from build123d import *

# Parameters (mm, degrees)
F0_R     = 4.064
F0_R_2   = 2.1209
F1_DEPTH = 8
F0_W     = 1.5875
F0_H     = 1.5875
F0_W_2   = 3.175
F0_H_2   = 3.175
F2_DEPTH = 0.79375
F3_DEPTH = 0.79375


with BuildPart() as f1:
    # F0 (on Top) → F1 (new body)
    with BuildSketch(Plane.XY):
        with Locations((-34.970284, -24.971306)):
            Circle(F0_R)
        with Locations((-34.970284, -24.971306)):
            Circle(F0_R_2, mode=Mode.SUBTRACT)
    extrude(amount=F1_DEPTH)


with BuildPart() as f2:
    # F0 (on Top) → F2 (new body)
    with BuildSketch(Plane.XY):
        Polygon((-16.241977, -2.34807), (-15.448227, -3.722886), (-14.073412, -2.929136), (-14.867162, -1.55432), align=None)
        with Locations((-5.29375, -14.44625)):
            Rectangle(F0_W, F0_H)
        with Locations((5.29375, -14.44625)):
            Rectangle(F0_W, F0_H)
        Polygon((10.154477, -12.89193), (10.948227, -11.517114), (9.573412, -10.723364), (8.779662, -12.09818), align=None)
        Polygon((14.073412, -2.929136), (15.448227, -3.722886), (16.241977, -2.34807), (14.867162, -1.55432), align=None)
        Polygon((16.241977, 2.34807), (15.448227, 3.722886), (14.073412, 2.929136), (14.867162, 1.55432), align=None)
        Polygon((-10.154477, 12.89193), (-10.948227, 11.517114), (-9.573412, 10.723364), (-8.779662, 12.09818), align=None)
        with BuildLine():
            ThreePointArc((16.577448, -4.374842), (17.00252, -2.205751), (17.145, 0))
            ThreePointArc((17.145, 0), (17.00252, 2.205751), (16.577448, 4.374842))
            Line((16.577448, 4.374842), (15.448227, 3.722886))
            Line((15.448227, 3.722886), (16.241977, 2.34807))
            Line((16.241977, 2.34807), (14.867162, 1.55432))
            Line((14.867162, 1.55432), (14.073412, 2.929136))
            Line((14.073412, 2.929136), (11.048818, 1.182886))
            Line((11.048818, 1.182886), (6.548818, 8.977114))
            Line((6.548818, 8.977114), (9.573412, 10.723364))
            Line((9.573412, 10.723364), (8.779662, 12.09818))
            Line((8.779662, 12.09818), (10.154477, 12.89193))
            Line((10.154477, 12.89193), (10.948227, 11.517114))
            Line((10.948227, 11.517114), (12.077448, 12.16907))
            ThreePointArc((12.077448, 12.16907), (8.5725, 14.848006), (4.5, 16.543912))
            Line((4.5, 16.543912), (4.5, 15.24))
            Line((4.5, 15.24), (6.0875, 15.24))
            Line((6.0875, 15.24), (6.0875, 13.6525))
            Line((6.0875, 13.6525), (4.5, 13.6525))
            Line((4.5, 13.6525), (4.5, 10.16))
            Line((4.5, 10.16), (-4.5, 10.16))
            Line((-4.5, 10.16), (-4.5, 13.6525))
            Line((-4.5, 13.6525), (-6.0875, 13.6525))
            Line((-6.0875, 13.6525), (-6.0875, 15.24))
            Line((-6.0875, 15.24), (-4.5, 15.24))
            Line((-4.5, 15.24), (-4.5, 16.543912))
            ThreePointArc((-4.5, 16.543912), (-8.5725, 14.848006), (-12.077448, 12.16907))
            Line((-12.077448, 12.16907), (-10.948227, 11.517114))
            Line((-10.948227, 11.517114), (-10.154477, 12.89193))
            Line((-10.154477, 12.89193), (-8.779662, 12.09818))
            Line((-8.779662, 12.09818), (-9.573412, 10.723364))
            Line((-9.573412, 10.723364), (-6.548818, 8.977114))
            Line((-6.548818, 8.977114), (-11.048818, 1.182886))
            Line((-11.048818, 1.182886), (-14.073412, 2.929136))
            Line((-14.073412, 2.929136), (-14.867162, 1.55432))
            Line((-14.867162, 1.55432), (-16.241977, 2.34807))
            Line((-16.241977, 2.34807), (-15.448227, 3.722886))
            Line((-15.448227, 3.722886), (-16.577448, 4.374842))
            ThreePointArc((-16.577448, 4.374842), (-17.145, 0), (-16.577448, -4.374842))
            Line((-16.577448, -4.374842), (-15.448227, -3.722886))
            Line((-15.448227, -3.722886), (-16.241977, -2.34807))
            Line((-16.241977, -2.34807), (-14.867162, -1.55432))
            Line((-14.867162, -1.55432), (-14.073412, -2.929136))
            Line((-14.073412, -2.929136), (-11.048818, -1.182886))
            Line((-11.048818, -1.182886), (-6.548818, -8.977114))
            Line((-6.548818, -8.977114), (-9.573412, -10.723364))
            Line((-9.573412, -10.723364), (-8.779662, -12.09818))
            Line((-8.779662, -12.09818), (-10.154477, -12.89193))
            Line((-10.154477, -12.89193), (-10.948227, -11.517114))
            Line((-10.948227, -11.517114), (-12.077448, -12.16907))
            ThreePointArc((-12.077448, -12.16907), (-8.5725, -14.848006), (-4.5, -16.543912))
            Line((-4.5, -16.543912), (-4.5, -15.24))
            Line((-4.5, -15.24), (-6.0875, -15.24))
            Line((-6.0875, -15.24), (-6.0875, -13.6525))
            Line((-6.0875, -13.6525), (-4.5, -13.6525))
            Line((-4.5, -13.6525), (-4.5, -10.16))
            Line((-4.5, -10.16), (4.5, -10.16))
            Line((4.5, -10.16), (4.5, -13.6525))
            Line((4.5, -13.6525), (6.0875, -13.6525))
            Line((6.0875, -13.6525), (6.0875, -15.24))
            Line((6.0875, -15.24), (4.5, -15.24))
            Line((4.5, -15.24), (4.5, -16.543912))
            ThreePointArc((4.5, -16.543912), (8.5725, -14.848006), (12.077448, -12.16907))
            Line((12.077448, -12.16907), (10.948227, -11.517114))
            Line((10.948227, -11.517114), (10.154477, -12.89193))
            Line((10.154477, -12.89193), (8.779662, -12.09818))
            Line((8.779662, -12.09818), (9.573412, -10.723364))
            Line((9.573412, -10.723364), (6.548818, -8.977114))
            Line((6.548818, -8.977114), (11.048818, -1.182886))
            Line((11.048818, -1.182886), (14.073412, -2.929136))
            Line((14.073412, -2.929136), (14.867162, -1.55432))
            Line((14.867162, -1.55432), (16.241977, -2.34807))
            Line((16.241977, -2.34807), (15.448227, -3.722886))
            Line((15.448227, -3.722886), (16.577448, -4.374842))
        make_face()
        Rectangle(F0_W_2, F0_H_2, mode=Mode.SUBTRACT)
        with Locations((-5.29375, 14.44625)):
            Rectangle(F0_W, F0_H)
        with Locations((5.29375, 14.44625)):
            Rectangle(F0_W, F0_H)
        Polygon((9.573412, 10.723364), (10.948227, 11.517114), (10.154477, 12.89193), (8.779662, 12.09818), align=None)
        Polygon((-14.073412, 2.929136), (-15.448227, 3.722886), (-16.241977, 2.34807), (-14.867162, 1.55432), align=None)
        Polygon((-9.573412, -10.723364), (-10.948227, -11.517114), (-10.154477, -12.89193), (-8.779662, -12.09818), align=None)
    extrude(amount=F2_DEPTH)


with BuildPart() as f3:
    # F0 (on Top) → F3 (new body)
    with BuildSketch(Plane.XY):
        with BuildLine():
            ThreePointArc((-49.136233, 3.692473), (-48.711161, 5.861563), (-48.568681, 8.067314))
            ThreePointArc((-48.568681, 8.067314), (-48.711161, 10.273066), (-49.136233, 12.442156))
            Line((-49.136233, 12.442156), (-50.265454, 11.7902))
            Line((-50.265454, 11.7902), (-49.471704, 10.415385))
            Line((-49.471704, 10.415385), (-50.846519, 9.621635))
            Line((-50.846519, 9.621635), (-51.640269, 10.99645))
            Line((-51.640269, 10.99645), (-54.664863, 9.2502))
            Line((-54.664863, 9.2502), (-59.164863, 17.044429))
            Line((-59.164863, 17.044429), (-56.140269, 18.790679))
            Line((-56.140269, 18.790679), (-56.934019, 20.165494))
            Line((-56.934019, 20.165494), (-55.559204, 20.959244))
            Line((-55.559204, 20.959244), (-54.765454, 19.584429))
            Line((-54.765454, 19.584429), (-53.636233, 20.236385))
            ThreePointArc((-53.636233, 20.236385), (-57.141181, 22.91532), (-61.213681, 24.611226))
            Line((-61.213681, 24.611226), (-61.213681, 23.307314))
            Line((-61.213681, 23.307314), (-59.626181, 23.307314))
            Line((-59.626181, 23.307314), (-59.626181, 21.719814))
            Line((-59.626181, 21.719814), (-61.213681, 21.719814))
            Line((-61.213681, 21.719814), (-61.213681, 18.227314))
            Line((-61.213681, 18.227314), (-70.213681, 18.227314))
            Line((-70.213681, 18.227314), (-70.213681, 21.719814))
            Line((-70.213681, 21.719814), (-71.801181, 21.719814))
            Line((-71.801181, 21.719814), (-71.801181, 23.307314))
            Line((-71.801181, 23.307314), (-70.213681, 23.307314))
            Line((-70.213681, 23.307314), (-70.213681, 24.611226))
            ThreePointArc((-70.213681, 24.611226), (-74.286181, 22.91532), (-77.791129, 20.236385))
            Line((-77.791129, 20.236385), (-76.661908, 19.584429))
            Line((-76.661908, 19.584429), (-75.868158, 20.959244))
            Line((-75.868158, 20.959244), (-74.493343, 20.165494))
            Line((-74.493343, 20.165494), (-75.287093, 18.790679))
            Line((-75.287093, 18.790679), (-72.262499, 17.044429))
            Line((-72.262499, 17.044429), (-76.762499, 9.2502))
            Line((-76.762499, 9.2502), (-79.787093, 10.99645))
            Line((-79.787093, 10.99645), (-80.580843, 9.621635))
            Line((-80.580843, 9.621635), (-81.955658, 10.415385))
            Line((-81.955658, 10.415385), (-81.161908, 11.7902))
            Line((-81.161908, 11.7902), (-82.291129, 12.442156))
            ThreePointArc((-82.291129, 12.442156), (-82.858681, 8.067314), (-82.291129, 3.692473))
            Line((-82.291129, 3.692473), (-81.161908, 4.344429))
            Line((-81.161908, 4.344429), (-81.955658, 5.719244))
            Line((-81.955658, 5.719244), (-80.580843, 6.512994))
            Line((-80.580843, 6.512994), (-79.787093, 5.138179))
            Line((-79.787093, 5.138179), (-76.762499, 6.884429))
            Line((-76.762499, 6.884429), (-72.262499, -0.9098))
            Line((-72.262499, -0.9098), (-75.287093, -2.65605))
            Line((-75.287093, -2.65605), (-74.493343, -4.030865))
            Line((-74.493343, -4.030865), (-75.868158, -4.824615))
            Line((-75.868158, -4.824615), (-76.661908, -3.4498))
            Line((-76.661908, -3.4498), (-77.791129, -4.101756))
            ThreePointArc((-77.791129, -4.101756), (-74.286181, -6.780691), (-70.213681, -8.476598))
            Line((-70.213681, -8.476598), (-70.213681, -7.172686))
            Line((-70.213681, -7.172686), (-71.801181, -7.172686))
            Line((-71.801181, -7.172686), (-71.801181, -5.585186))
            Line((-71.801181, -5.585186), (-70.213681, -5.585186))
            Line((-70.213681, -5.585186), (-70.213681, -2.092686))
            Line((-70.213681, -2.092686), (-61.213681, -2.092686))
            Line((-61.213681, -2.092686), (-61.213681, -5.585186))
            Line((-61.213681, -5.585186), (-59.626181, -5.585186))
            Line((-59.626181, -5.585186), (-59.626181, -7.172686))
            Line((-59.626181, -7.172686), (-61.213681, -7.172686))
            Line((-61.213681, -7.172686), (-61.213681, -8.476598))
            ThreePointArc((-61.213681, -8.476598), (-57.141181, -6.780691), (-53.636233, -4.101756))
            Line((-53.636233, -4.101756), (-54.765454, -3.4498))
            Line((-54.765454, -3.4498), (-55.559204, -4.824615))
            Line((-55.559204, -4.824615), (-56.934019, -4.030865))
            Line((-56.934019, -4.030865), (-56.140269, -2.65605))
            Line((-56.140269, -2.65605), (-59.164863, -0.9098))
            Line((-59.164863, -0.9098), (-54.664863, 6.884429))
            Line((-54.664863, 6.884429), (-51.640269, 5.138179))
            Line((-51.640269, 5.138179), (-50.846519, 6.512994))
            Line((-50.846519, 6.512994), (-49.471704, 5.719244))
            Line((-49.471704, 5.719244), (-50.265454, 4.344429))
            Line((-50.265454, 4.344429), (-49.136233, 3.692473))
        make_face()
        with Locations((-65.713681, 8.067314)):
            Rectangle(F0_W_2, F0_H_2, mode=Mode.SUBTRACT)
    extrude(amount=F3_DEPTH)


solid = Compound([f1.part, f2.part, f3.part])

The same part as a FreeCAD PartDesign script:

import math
import FreeCAD as App
import Part
import Sketcher
Q = App.Units.Quantity


def add_polygon(sketch, points):
    """Adds a closed chain of lines whose ends are joined by coincident constraints."""
    first, n = sketch.GeometryCount, len(points)
    for a, b in zip(points, points[1:] + points[:1]):
        sketch.addGeometry(Part.LineSegment(App.Vector(*a, 0), App.Vector(*b, 0)), False)
    for i in range(n):
        sketch.addConstraint(Sketcher.Constraint("Coincident", first + i, 2, first + (i + 1) % n, 1))

doc = App.newDocument("Part")
params = doc.addObject("Spreadsheet::Sheet", "Params")
for row, (alias, value) in enumerate([
    ("sketch1_diameter", "0.32 in"),
    ("sketch1_diameter2", "0.167 in"),
    ("pad1_length", "8 mm"),
    ("sketch2_radius", "0.6750001 in"),
    ("sketch2_width", "0.125 in"),
    ("sketch2_length", "0.0625 in"),
    ("pad2_length", "0.03125 in"),
    ("sketch3_radius", "0.6749998 in"),
    ("sketch3_width", "0.0625 in"),
    ("sketch3_width2", "0.125 in"),
    ("sketch3_length", "0.0625 in"),
    ("pad3_length", "0.03125 in"),
], start=1):
    params.set(f"A{row}", alias)
    params.set(f"B{row}", "=" + value)
    params.setAlias(f"B{row}", alias)

body = doc.addObject("PartDesign::Body", "Body")

sketch1 = body.newObject("Sketcher::SketchObject", "Sketch")
sketch1.AttachmentSupport = (doc.getObject("XY_Plane"), [""])
sketch1.MapMode = "FlatFace"
sketch1.addGeometry(Part.Circle(App.Vector(-35, -25, 0), App.Vector(0, 0, 1), 4.1), False)
sketch1.addGeometry(Part.Circle(App.Vector(-35, -25, 0), App.Vector(0, 0, 1), 2.1), False)
sketch1.addConstraint(Sketcher.Constraint("Coincident", 1, 3, 0, 3))
sketch1.addConstraint(Sketcher.Constraint("Diameter", 0, Q("0.32 in")))
sketch1.addConstraint(Sketcher.Constraint("Diameter", 1, Q("0.167 in")))
sketch1.addConstraint(Sketcher.Constraint("DistanceX", 0, 3, -1, 1, Q("34.970284 mm")))
sketch1.addConstraint(Sketcher.Constraint("DistanceY", 0, 3, -1, 1, Q("24.971306 mm")))
sketch1.setExpression("Constraints[1]", "Params.sketch1_diameter")
sketch1.setExpression("Constraints[2]", "Params.sketch1_diameter2")
pad1 = body.newObject("PartDesign::Pad", "Pad")
pad1.Profile = sketch1
pad1.setExpression("Length", "Params.pad1_length")
body2 = doc.addObject("PartDesign::Body", "Body001")

sketch2 = body2.newObject("Sketcher::SketchObject", "Sketch001")
sketch2.AttachmentSupport = (doc.getObject("XY_Plane001"), [""])
sketch2.MapMode = "FlatFace"
sketch2.addGeometry(Part.LineSegment(App.Vector(-15.448227, -3.722886, 0), App.Vector(-14.073412, -2.929136, 0)), False)
sketch2.addGeometry(Part.LineSegment(App.Vector(-14.073412, -2.929136, 0), App.Vector(-11.048818, -1.182886, 0)), False)
sketch2.addGeometry(Part.LineSegment(App.Vector(-11.048818, -1.182886, 0), App.Vector(-6.548818, -8.977114, 0)), False)
sketch2.addGeometry(Part.LineSegment(App.Vector(-6.548818, -8.977114, 0), App.Vector(-9.573412, -10.723364, 0)), False)
sketch2.addGeometry(Part.LineSegment(App.Vector(-9.573412, -10.723364, 0), App.Vector(-10.948227, -11.517114, 0)), False)
sketch2.addGeometry(Part.LineSegment(App.Vector(-10.948227, -11.517114, 0), App.Vector(-12.077448, -12.16907, 0)), False)
sketch2.addGeometry(Part.ArcOfCircle(Part.Circle(App.Vector(-0.000008, -0.000015, 0), App.Vector(0, 0, 1), 17.144984), math.radians(-134.783509), math.radians(-105.216495)), False)
sketch2.addGeometry(Part.LineSegment(App.Vector(-4.5, -16.543912, 0), App.Vector(-4.5, -10.16, 0)), False)
sketch2.addGeometry(Part.LineSegment(App.Vector(-4.5, -10.16, 0), App.Vector(4.5, -10.16, 0)), False)
sketch2.addGeometry(Part.LineSegment(App.Vector(4.5, -10.16, 0), App.Vector(4.5, -16.543912, 0)), False)
sketch2.addGeometry(Part.ArcOfCircle(Part.Circle(App.Vector(0.000008, -0.000015, 0), App.Vector(0, 0, 1), 17.144984), math.radians(-74.783505), math.radians(-45.216491)), False)
sketch2.addGeometry(Part.LineSegment(App.Vector(12.077448, -12.16907, 0), App.Vector(10.948227, -11.517114, 0)), False)
sketch2.addGeometry(Part.LineSegment(App.Vector(10.948227, -11.517114, 0), App.Vector(9.573412, -10.723364, 0)), False)
sketch2.addGeometry(Part.LineSegment(App.Vector(9.573412, -10.723364, 0), App.Vector(6.548818, -8.977114, 0)), False)
sketch2.addGeometry(Part.LineSegment(App.Vector(6.548818, -8.977114, 0), App.Vector(11.048818, -1.182886, 0)), False)
sketch2.addGeometry(Part.LineSegment(App.Vector(11.048818, -1.182886, 0), App.Vector(14.073412, -2.929136, 0)), False)
sketch2.addGeometry(Part.LineSegment(App.Vector(14.073412, -2.929136, 0), App.Vector(15.448227, -3.722886, 0)), False)
sketch2.addGeometry(Part.LineSegment(App.Vector(15.448227, -3.722886, 0), App.Vector(16.577448, -4.374842, 0)), False)
sketch2.addGeometry(Part.ArcOfCircle(Part.Circle(App.Vector(-0.000004, 0, 0), App.Vector(0, 0, 1), 17.145004), math.radians(-14.783493), math.radians(-0.000002)), False)
sketch2.addGeometry(Part.ArcOfCircle(Part.Circle(App.Vector(-0.000004, 0, 0), App.Vector(0, 0, 1), 17.145004), math.radians(0.000002), math.radians(14.783493)), False)
sketch2.addGeometry(Part.LineSegment(App.Vector(16.577448, 4.374842, 0), App.Vector(15.448227, 3.722886, 0)), False)
sketch2.addGeometry(Part.LineSegment(App.Vector(15.448227, 3.722886, 0), App.Vector(14.073412, 2.929136, 0)), False)
sketch2.addGeometry(Part.LineSegment(App.Vector(14.073412, 2.929136, 0), App.Vector(11.048818, 1.182886, 0)), False)
sketch2.addGeometry(Part.LineSegment(App.Vector(11.048818, 1.182886, 0), App.Vector(6.548818, 8.977114, 0)), False)
sketch2.addGeometry(Part.LineSegment(App.Vector(6.548818, 8.977114, 0), App.Vector(9.573412, 10.723364, 0)), False)
sketch2.addGeometry(Part.LineSegment(App.Vector(9.573412, 10.723364, 0), App.Vector(10.948227, 11.517114, 0)), False)
sketch2.addGeometry(Part.LineSegment(App.Vector(10.948227, 11.517114, 0), App.Vector(12.077448, 12.16907, 0)), False)
sketch2.addGeometry(Part.ArcOfCircle(Part.Circle(App.Vector(0.000008, 0.000015, 0), App.Vector(0, 0, 1), 17.144984), math.radians(45.216491), math.radians(74.783505)), False)
sketch2.addGeometry(Part.LineSegment(App.Vector(4.5, 16.543912, 0), App.Vector(4.5, 10.16, 0)), False)
sketch2.addGeometry(Part.LineSegment(App.Vector(4.5, 10.16, 0), App.Vector(-4.5, 10.16, 0)), False)
sketch2.addGeometry(Part.LineSegment(App.Vector(-4.5, 10.16, 0), App.Vector(-4.5, 16.543912, 0)), False)
sketch2.addGeometry(Part.ArcOfCircle(Part.Circle(App.Vector(-0.000008, 0.000015, 0), App.Vector(0, 0, 1), 17.144984), math.radians(105.216495), math.radians(134.783509)), False)
sketch2.addGeometry(Part.LineSegment(App.Vector(-12.077448, 12.16907, 0), App.Vector(-10.948227, 11.517114, 0)), False)
sketch2.addGeometry(Part.LineSegment(App.Vector(-10.948227, 11.517114, 0), App.Vector(-9.573412, 10.723364, 0)), False)
sketch2.addGeometry(Part.LineSegment(App.Vector(-9.573412, 10.723364, 0), App.Vector(-6.548818, 8.977114, 0)), False)
sketch2.addGeometry(Part.LineSegment(App.Vector(-6.548818, 8.977114, 0), App.Vector(-11.048818, 1.182886, 0)), False)
sketch2.addGeometry(Part.LineSegment(App.Vector(-11.048818, 1.182886, 0), App.Vector(-14.073412, 2.929136, 0)), False)
sketch2.addGeometry(Part.LineSegment(App.Vector(-14.073412, 2.929136, 0), App.Vector(-15.448227, 3.722886, 0)), False)
sketch2.addGeometry(Part.LineSegment(App.Vector(-15.448227, 3.722886, 0), App.Vector(-16.577448, 4.374842, 0)), False)
sketch2.addGeometry(Part.ArcOfCircle(Part.Circle(App.Vector(0, 0, 0), App.Vector(0, 0, 1), 17.145), math.radians(165.216506), math.radians(194.783494)), False)
sketch2.addGeometry(Part.LineSegment(App.Vector(-16.577448, -4.374842, 0), App.Vector(-15.448227, -3.722886, 0)), False)
add_polygon(sketch2, [(1.5875, -1.5875), (-1.5875, -1.5875), (-1.5875, 1.5875), (1.5875, 1.5875)])
sketch2.addConstraint(Sketcher.Constraint("Coincident", 0, 2, 1, 1))
sketch2.addConstraint(Sketcher.Constraint("Coincident", 1, 2, 2, 1))
sketch2.addConstraint(Sketcher.Constraint("Coincident", 2, 2, 3, 1))
sketch2.addConstraint(Sketcher.Constraint("Coincident", 3, 2, 4, 1))
sketch2.addConstraint(Sketcher.Constraint("Coincident", 4, 2, 5, 1))
sketch2.addConstraint(Sketcher.Constraint("Coincident", 5, 2, 6, 1))
sketch2.addConstraint(Sketcher.Constraint("Coincident", 6, 2, 7, 1))
sketch2.addConstraint(Sketcher.Constraint("Coincident", 7, 2, 8, 1))
sketch2.addConstraint(Sketcher.Constraint("Coincident", 8, 2, 9, 1))
sketch2.addConstraint(Sketcher.Constraint("Coincident", 9, 2, 10, 1))
sketch2.addConstraint(Sketcher.Constraint("Coincident", 10, 2, 11, 1))
sketch2.addConstraint(Sketcher.Constraint("Coincident", 11, 2, 12, 1))
sketch2.addConstraint(Sketcher.Constraint("Coincident", 12, 2, 13, 1))
sketch2.addConstraint(Sketcher.Constraint("Coincident", 13, 2, 14, 1))
sketch2.addConstraint(Sketcher.Constraint("Coincident", 14, 2, 15, 1))
sketch2.addConstraint(Sketcher.Constraint("Coincident", 15, 2, 16, 1))
sketch2.addConstraint(Sketcher.Constraint("Coincident", 16, 2, 17, 1))
sketch2.addConstraint(Sketcher.Constraint("Coincident", 17, 2, 18, 1))
sketch2.addConstraint(Sketcher.Constraint("Tangent", 18, 2, 19, 1))
sketch2.addConstraint(Sketcher.Constraint("Coincident", 19, 2, 20, 1))
sketch2.addConstraint(Sketcher.Constraint("Coincident", 20, 2, 21, 1))
sketch2.addConstraint(Sketcher.Constraint("Coincident", 21, 2, 22, 1))
sketch2.addConstraint(Sketcher.Constraint("Coincident", 22, 2, 23, 1))
sketch2.addConstraint(Sketcher.Constraint("Coincident", 23, 2, 24, 1))
sketch2.addConstraint(Sketcher.Constraint("Coincident", 24, 2, 25, 1))
sketch2.addConstraint(Sketcher.Constraint("Coincident", 25, 2, 26, 1))
sketch2.addConstraint(Sketcher.Constraint("Coincident", 26, 2, 27, 1))
sketch2.addConstraint(Sketcher.Constraint("Coincident", 27, 2, 28, 1))
sketch2.addConstraint(Sketcher.Constraint("Coincident", 28, 2, 29, 1))
sketch2.addConstraint(Sketcher.Constraint("Coincident", 29, 2, 30, 1))
sketch2.addConstraint(Sketcher.Constraint("Coincident", 30, 2, 31, 1))
sketch2.addConstraint(Sketcher.Constraint("Coincident", 31, 2, 32, 1))
sketch2.addConstraint(Sketcher.Constraint("Coincident", 32, 2, 33, 1))
sketch2.addConstraint(Sketcher.Constraint("Coincident", 33, 2, 34, 1))
sketch2.addConstraint(Sketcher.Constraint("Coincident", 34, 2, 35, 1))
sketch2.addConstraint(Sketcher.Constraint("Coincident", 35, 2, 36, 1))
sketch2.addConstraint(Sketcher.Constraint("Coincident", 36, 2, 37, 1))
sketch2.addConstraint(Sketcher.Constraint("Coincident", 37, 2, 38, 1))
sketch2.addConstraint(Sketcher.Constraint("Coincident", 38, 2, 39, 1))
sketch2.addConstraint(Sketcher.Constraint("Coincident", 39, 2, 40, 1))
sketch2.addConstraint(Sketcher.Constraint("Coincident", 40, 2, 0, 1))
sketch2.addConstraint(Sketcher.Constraint("Vertical", 7))
sketch2.addConstraint(Sketcher.Constraint("Horizontal", 8))
sketch2.addConstraint(Sketcher.Constraint("Vertical", 9))
sketch2.addConstraint(Sketcher.Constraint("Vertical", 28))
sketch2.addConstraint(Sketcher.Constraint("Horizontal", 29))
sketch2.addConstraint(Sketcher.Constraint("Vertical", 30))
sketch2.addConstraint(Sketcher.Constraint("Horizontal", 41))
sketch2.addConstraint(Sketcher.Constraint("Vertical", 42))
sketch2.addConstraint(Sketcher.Constraint("Horizontal", 43))
sketch2.addConstraint(Sketcher.Constraint("Vertical", 44))
sketch2.addConstraint(Sketcher.Constraint("Coincident", 18, 3, -1, 1))
sketch2.addConstraint(Sketcher.Constraint("Coincident", 39, 3, -1, 1))
sketch2.addConstraint(Sketcher.Constraint("Equal", 6, 10))
sketch2.addConstraint(Sketcher.Constraint("Equal", 18, 19))
sketch2.addConstraint(Sketcher.Constraint("Equal", 10, 27))
sketch2.addConstraint(Sketcher.Constraint("Equal", 27, 31))
sketch2.addConstraint(Sketcher.Constraint("Symmetric", 6, 3, 27, 3, -1, 1))
sketch2.addConstraint(Sketcher.Constraint("Symmetric", 10, 3, 31, 3, -1, 1))
sketch2.addConstraint(Sketcher.Constraint("Symmetric", 0, 2, 21, 2, -1, 1))
sketch2.addConstraint(Sketcher.Constraint("Symmetric", 1, 2, 22, 2, -1, 1))
sketch2.addConstraint(Sketcher.Constraint("Symmetric", 2, 2, 23, 2, -1, 1))
sketch2.addConstraint(Sketcher.Constraint("Symmetric", 3, 2, 24, 2, -1, 1))
sketch2.addConstraint(Sketcher.Constraint("Symmetric", 4, 2, 25, 2, -1, 1))
sketch2.addConstraint(Sketcher.Constraint("Symmetric", 7, 2, 28, 2, -1, 1))
sketch2.addConstraint(Sketcher.Constraint("Symmetric", 11, 2, 32, 2, -1, 1))
sketch2.addConstraint(Sketcher.Constraint("Symmetric", 12, 2, 33, 2, -1, 1))
sketch2.addConstraint(Sketcher.Constraint("Symmetric", 13, 2, 34, 2, -1, 1))
sketch2.addConstraint(Sketcher.Constraint("Symmetric", 14, 2, 35, 2, -1, 1))
sketch2.addConstraint(Sketcher.Constraint("Symmetric", 15, 2, 36, 2, -1, 1))
sketch2.addConstraint(Sketcher.Constraint("Symmetric", 16, 2, 37, 2, -1, 1))
sketch2.addConstraint(Sketcher.Constraint("Symmetric", 17, 2, 38, 2, -1, 1))
sketch2.addConstraint(Sketcher.Constraint("Symmetric", 20, 2, 40, 2, -1, 1))
sketch2.addConstraint(Sketcher.Constraint("Symmetric", 41, 2, 43, 2, -1, 1))
sketch2.addConstraint(Sketcher.Constraint("Symmetric", 6, 3, 10, 3, -2))
sketch2.addConstraint(Sketcher.Constraint("Symmetric", 4, 2, 11, 2, -2))
sketch2.addConstraint(Sketcher.Constraint("Symmetric", 3, 2, 12, 2, -2))
sketch2.addConstraint(Sketcher.Constraint("Symmetric", 2, 2, 13, 2, -2))
sketch2.addConstraint(Sketcher.Constraint("Symmetric", 1, 2, 14, 2, -2))
sketch2.addConstraint(Sketcher.Constraint("Symmetric", 0, 2, 15, 2, -2))
sketch2.addConstraint(Sketcher.Constraint("Symmetric", 20, 2, 37, 2, -2))
sketch2.addConstraint(Sketcher.Constraint("PointOnObject", 18, 2, -1))
sketch2.addConstraint(Sketcher.Constraint("Parallel", 0, 1))
sketch2.addConstraint(Sketcher.Constraint("Perpendicular", 1, 2))
sketch2.addConstraint(Sketcher.Constraint("Perpendicular", 2, 3))
sketch2.addConstraint(Sketcher.Constraint("Parallel", 3, 4))
sketch2.addConstraint(Sketcher.Constraint("Parallel", 4, 5))
sketch2.addConstraint(Sketcher.Constraint("Parallel", 11, 12))
sketch2.addConstraint(Sketcher.Constraint("Parallel", 16, 17))
sketch2.addConstraint(Sketcher.Constraint("Parallel", 5, 20))
sketch2.addConstraint(Sketcher.Constraint("Parallel", 25, 26))
sketch2.addConstraint(Sketcher.Constraint("Parallel", 17, 32))
sketch2.addConstraint(Sketcher.Constraint("Parallel", 26, 40))
sketch2.addConstraint(Sketcher.Constraint("Horizontal", 6, 2, 9, 2))
sketch2.addConstraint(Sketcher.Constraint("Horizontal", 27, 2, 30, 2))
sketch2.addConstraint(Sketcher.Constraint("Equal", 43, 42))
sketch2.addConstraint(Sketcher.Constraint("Equal", 1, 3))
sketch2.addConstraint(Sketcher.Constraint("Equal", 0, 4))
sketch2.addConstraint(Sketcher.Constraint("Equal", 11, 17))
sketch2.addConstraint(Sketcher.Constraint("Angle", 0, Q("30.000006 deg")))
sketch2.addConstraint(Sketcher.Constraint("Radius", 18, Q("0.6750001 in")))
sketch2.addConstraint(Sketcher.Constraint("DistanceY", 7, 2, -1, 1, Q("0.4 in")))
sketch2.addConstraint(Sketcher.Constraint("DistanceY", 4, 2, 2, 2, Q("0.1 in")))
sketch2.addConstraint(Sketcher.Constraint("DistanceY", 1, 2, 32, 2, Q("0.5 in")))
sketch2.addConstraint(Sketcher.Constraint("DistanceX", 41, 2, 41, 1, Q("0.125 in")))
sketch2.addConstraint(Sketcher.Constraint("Distance", 0, Q("0.0625 in")))
sketch2.addConstraint(Sketcher.Constraint("DistanceX", 8, 1, 8, 2, Q("9 mm")))
sketch2.addConstraint(Sketcher.Constraint("Radius", 6, Q("17.144984 mm")))
sketch2.addConstraint(Sketcher.Constraint("Distance", 2, Q("8.999999 mm")))
sketch2.addConstraint(Sketcher.Constraint("DistanceY", 7, 1, 7, 2, Q("6.383912 mm")))
sketch2.addConstraint(Sketcher.Constraint("DistanceY", 1, 2, 31, 3, Q("1.182901 mm")))
sketch2.setExpression("Constraints[104]", "Params.sketch2_radius")
sketch2.setExpression("Constraints[108]", "Params.sketch2_width")
sketch2.setExpression("Constraints[109]", "Params.sketch2_length")
pad2 = body2.newObject("PartDesign::Pad", "Pad001")
pad2.Profile = sketch2
pad2.setExpression("Length", "Params.pad2_length")
body3 = doc.addObject("PartDesign::Body", "Body002")

sketch3 = body3.newObject("Sketcher::SketchObject", "Sketch002")
sketch3.AttachmentSupport = (doc.getObject("XY_Plane002"), [""])
sketch3.MapMode = "FlatFace"
sketch3.addGeometry(Part.ArcOfCircle(Part.Circle(App.Vector(-65.7, 8.1, 0), App.Vector(0, 0, 1), 17.1), math.radians(-14.78), math.radians(0)), False)
sketch3.addGeometry(Part.ArcOfCircle(Part.Circle(App.Vector(-65.7, 8.1, 0), App.Vector(0, 0, 1), 17.1), math.radians(0), math.radians(14.78)), False)
sketch3.addGeometry(Part.LineSegment(App.Vector(-49.1, 12.4, 0), App.Vector(-50.3, 11.8, 0)), False)
sketch3.addGeometry(Part.LineSegment(App.Vector(-50.3, 11.8, 0), App.Vector(-49.5, 10.4, 0)), False)
sketch3.addGeometry(Part.LineSegment(App.Vector(-49.5, 10.4, 0), App.Vector(-50.8, 9.6, 0)), False)
sketch3.addGeometry(Part.LineSegment(App.Vector(-50.8, 9.6, 0), App.Vector(-51.6, 11, 0)), False)
sketch3.addGeometry(Part.LineSegment(App.Vector(-51.6, 11, 0), App.Vector(-54.7, 9.3, 0)), False)
sketch3.addGeometry(Part.LineSegment(App.Vector(-54.7, 9.3, 0), App.Vector(-59.2, 17, 0)), False)
sketch3.addGeometry(Part.LineSegment(App.Vector(-59.2, 17, 0), App.Vector(-56.1, 18.8, 0)), False)
sketch3.addGeometry(Part.LineSegment(App.Vector(-56.1, 18.8, 0), App.Vector(-56.9, 20.2, 0)), False)
sketch3.addGeometry(Part.LineSegment(App.Vector(-56.9, 20.2, 0), App.Vector(-55.6, 21, 0)), False)
sketch3.addGeometry(Part.LineSegment(App.Vector(-55.6, 21, 0), App.Vector(-54.8, 19.6, 0)), False)
sketch3.addGeometry(Part.LineSegment(App.Vector(-54.8, 19.6, 0), App.Vector(-53.6, 20.2, 0)), False)
sketch3.addGeometry(Part.ArcOfCircle(Part.Circle(App.Vector(-65.7, 8.1, 0), App.Vector(0, 0, 1), 17.1), math.radians(45), math.radians(75)), False)
sketch3.addGeometry(Part.LineSegment(App.Vector(-61.2, 24.6, 0), App.Vector(-61.2, 23.3, 0)), False)
sketch3.addGeometry(Part.LineSegment(App.Vector(-61.2, 23.3, 0), App.Vector(-59.6, 23.3, 0)), False)
sketch3.addGeometry(Part.LineSegment(App.Vector(-59.6, 23.3, 0), App.Vector(-59.6, 21.7, 0)), False)
sketch3.addGeometry(Part.LineSegment(App.Vector(-59.6, 21.7, 0), App.Vector(-61.2, 21.7, 0)), False)
sketch3.addGeometry(Part.LineSegment(App.Vector(-61.2, 21.7, 0), App.Vector(-61.2, 18.2, 0)), False)
sketch3.addGeometry(Part.LineSegment(App.Vector(-61.2, 18.2, 0), App.Vector(-70.2, 18.2, 0)), False)
sketch3.addGeometry(Part.LineSegment(App.Vector(-70.2, 18.2, 0), App.Vector(-70.2, 21.7, 0)), False)
sketch3.addGeometry(Part.LineSegment(App.Vector(-70.2, 21.7, 0), App.Vector(-71.8, 21.7, 0)), False)
sketch3.addGeometry(Part.LineSegment(App.Vector(-71.8, 21.7, 0), App.Vector(-71.8, 23.3, 0)), False)
sketch3.addGeometry(Part.LineSegment(App.Vector(-71.8, 23.3, 0), App.Vector(-70.2, 23.3, 0)), False)
sketch3.addGeometry(Part.LineSegment(App.Vector(-70.2, 23.3, 0), App.Vector(-70.2, 24.6, 0)), False)
sketch3.addGeometry(Part.ArcOfCircle(Part.Circle(App.Vector(-65.7, 8.1, 0), App.Vector(0, 0, 1), 17.1), math.radians(105), math.radians(135)), False)
sketch3.addGeometry(Part.LineSegment(App.Vector(-77.8, 20.2, 0), App.Vector(-76.7, 19.6, 0)), False)
sketch3.addGeometry(Part.LineSegment(App.Vector(-76.7, 19.6, 0), App.Vector(-75.9, 21, 0)), False)
sketch3.addGeometry(Part.LineSegment(App.Vector(-75.9, 21, 0), App.Vector(-74.5, 20.2, 0)), False)
sketch3.addGeometry(Part.LineSegment(App.Vector(-74.5, 20.2, 0), App.Vector(-75.3, 18.8, 0)), False)
sketch3.addGeometry(Part.LineSegment(App.Vector(-75.3, 18.8, 0), App.Vector(-72.3, 17, 0)), False)
sketch3.addGeometry(Part.LineSegment(App.Vector(-72.3, 17, 0), App.Vector(-76.8, 9.3, 0)), False)
sketch3.addGeometry(Part.LineSegment(App.Vector(-76.8, 9.3, 0), App.Vector(-79.8, 11, 0)), False)
sketch3.addGeometry(Part.LineSegment(App.Vector(-79.8, 11, 0), App.Vector(-80.6, 9.6, 0)), False)
sketch3.addGeometry(Part.LineSegment(App.Vector(-80.6, 9.6, 0), App.Vector(-82, 10.4, 0)), False)
sketch3.addGeometry(Part.LineSegment(App.Vector(-82, 10.4, 0), App.Vector(-81.2, 11.8, 0)), False)
sketch3.addGeometry(Part.LineSegment(App.Vector(-81.2, 11.8, 0), App.Vector(-82.3, 12.4, 0)), False)
sketch3.addGeometry(Part.ArcOfCircle(Part.Circle(App.Vector(-65.7, 8.1, 0), App.Vector(0, 0, 1), 17.1), math.radians(165), math.radians(195)), False)
sketch3.addGeometry(Part.LineSegment(App.Vector(-82.3, 3.7, 0), App.Vector(-81.2, 4.3, 0)), False)
sketch3.addGeometry(Part.LineSegment(App.Vector(-81.2, 4.3, 0), App.Vector(-82, 5.7, 0)), False)
sketch3.addGeometry(Part.LineSegment(App.Vector(-82, 5.7, 0), App.Vector(-80.6, 6.5, 0)), False)
sketch3.addGeometry(Part.LineSegment(App.Vector(-80.6, 6.5, 0), App.Vector(-79.8, 5.1, 0)), False)
sketch3.addGeometry(Part.LineSegment(App.Vector(-79.8, 5.1, 0), App.Vector(-76.8, 6.9, 0)), False)
sketch3.addGeometry(Part.LineSegment(App.Vector(-76.8, 6.9, 0), App.Vector(-72.3, -0.9, 0)), False)
sketch3.addGeometry(Part.LineSegment(App.Vector(-72.3, -0.9, 0), App.Vector(-75.3, -2.7, 0)), False)
sketch3.addGeometry(Part.LineSegment(App.Vector(-75.3, -2.7, 0), App.Vector(-74.5, -4, 0)), False)
sketch3.addGeometry(Part.LineSegment(App.Vector(-74.5, -4, 0), App.Vector(-75.9, -4.8, 0)), False)
sketch3.addGeometry(Part.LineSegment(App.Vector(-75.9, -4.8, 0), App.Vector(-76.7, -3.4, 0)), False)
sketch3.addGeometry(Part.LineSegment(App.Vector(-76.7, -3.4, 0), App.Vector(-77.8, -4.1, 0)), False)
sketch3.addGeometry(Part.ArcOfCircle(Part.Circle(App.Vector(-65.7, 8.1, 0), App.Vector(0, 0, 1), 17.1), math.radians(-135), math.radians(-105)), False)
sketch3.addGeometry(Part.LineSegment(App.Vector(-70.2, -8.5, 0), App.Vector(-70.2, -7.2, 0)), False)
sketch3.addGeometry(Part.LineSegment(App.Vector(-70.2, -7.2, 0), App.Vector(-71.8, -7.2, 0)), False)
sketch3.addGeometry(Part.LineSegment(App.Vector(-71.8, -7.2, 0), App.Vector(-71.8, -5.6, 0)), False)
sketch3.addGeometry(Part.LineSegment(App.Vector(-71.8, -5.6, 0), App.Vector(-70.2, -5.6, 0)), False)
sketch3.addGeometry(Part.LineSegment(App.Vector(-70.2, -5.6, 0), App.Vector(-70.2, -2.1, 0)), False)
sketch3.addGeometry(Part.LineSegment(App.Vector(-70.2, -2.1, 0), App.Vector(-61.2, -2.1, 0)), False)
sketch3.addGeometry(Part.LineSegment(App.Vector(-61.2, -2.1, 0), App.Vector(-61.2, -5.6, 0)), False)
sketch3.addGeometry(Part.LineSegment(App.Vector(-61.2, -5.6, 0), App.Vector(-59.6, -5.6, 0)), False)
sketch3.addGeometry(Part.LineSegment(App.Vector(-59.6, -5.6, 0), App.Vector(-59.6, -7.2, 0)), False)
sketch3.addGeometry(Part.LineSegment(App.Vector(-59.6, -7.2, 0), App.Vector(-61.2, -7.2, 0)), False)
sketch3.addGeometry(Part.LineSegment(App.Vector(-61.2, -7.2, 0), App.Vector(-61.2, -8.5, 0)), False)
sketch3.addGeometry(Part.ArcOfCircle(Part.Circle(App.Vector(-65.7, 8.1, 0), App.Vector(0, 0, 1), 17.1), math.radians(-75), math.radians(-45)), False)
sketch3.addGeometry(Part.LineSegment(App.Vector(-53.6, -4.1, 0), App.Vector(-54.8, -3.4, 0)), False)
sketch3.addGeometry(Part.LineSegment(App.Vector(-54.8, -3.4, 0), App.Vector(-55.6, -4.8, 0)), False)
sketch3.addGeometry(Part.LineSegment(App.Vector(-55.6, -4.8, 0), App.Vector(-56.9, -4, 0)), False)
sketch3.addGeometry(Part.LineSegment(App.Vector(-56.9, -4, 0), App.Vector(-56.1, -2.7, 0)), False)
sketch3.addGeometry(Part.LineSegment(App.Vector(-56.1, -2.7, 0), App.Vector(-59.2, -0.9, 0)), False)
sketch3.addGeometry(Part.LineSegment(App.Vector(-59.2, -0.9, 0), App.Vector(-54.7, 6.9, 0)), False)
sketch3.addGeometry(Part.LineSegment(App.Vector(-54.7, 6.9, 0), App.Vector(-51.6, 5.1, 0)), False)
sketch3.addGeometry(Part.LineSegment(App.Vector(-51.6, 5.1, 0), App.Vector(-50.8, 6.5, 0)), False)
sketch3.addGeometry(Part.LineSegment(App.Vector(-50.8, 6.5, 0), App.Vector(-49.5, 5.7, 0)), False)
sketch3.addGeometry(Part.LineSegment(App.Vector(-49.5, 5.7, 0), App.Vector(-50.3, 4.3, 0)), False)
sketch3.addGeometry(Part.LineSegment(App.Vector(-50.3, 4.3, 0), App.Vector(-49.1, 3.7, 0)), False)
add_polygon(sketch3, [(-64.1, 6.5), (-67.3, 6.5), (-67.3, 9.7), (-64.1, 9.7)])
sketch3.addConstraint(Sketcher.Constraint("Tangent", 0, 2, 1, 1))
sketch3.addConstraint(Sketcher.Constraint("Coincident", 1, 2, 2, 1))
sketch3.addConstraint(Sketcher.Constraint("Coincident", 2, 2, 3, 1))
sketch3.addConstraint(Sketcher.Constraint("Coincident", 3, 2, 4, 1))
sketch3.addConstraint(Sketcher.Constraint("Coincident", 4, 2, 5, 1))
sketch3.addConstraint(Sketcher.Constraint("Coincident", 5, 2, 6, 1))
sketch3.addConstraint(Sketcher.Constraint("Coincident", 6, 2, 7, 1))
sketch3.addConstraint(Sketcher.Constraint("Coincident", 7, 2, 8, 1))
sketch3.addConstraint(Sketcher.Constraint("Coincident", 8, 2, 9, 1))
sketch3.addConstraint(Sketcher.Constraint("Coincident", 9, 2, 10, 1))
sketch3.addConstraint(Sketcher.Constraint("Coincident", 10, 2, 11, 1))
sketch3.addConstraint(Sketcher.Constraint("Coincident", 11, 2, 12, 1))
sketch3.addConstraint(Sketcher.Constraint("Coincident", 12, 2, 13, 1))
sketch3.addConstraint(Sketcher.Constraint("Coincident", 13, 2, 14, 1))
sketch3.addConstraint(Sketcher.Constraint("Coincident", 14, 2, 15, 1))
sketch3.addConstraint(Sketcher.Constraint("Coincident", 15, 2, 16, 1))
sketch3.addConstraint(Sketcher.Constraint("Coincident", 16, 2, 17, 1))
sketch3.addConstraint(Sketcher.Constraint("Coincident", 17, 2, 18, 1))
sketch3.addConstraint(Sketcher.Constraint("Coincident", 18, 2, 19, 1))
sketch3.addConstraint(Sketcher.Constraint("Coincident", 19, 2, 20, 1))
sketch3.addConstraint(Sketcher.Constraint("Coincident", 20, 2, 21, 1))
sketch3.addConstraint(Sketcher.Constraint("Coincident", 21, 2, 22, 1))
sketch3.addConstraint(Sketcher.Constraint("Coincident", 22, 2, 23, 1))
sketch3.addConstraint(Sketcher.Constraint("Coincident", 23, 2, 24, 1))
sketch3.addConstraint(Sketcher.Constraint("Coincident", 24, 2, 25, 1))
sketch3.addConstraint(Sketcher.Constraint("Coincident", 25, 2, 26, 1))
sketch3.addConstraint(Sketcher.Constraint("Coincident", 26, 2, 27, 1))
sketch3.addConstraint(Sketcher.Constraint("Coincident", 27, 2, 28, 1))
sketch3.addConstraint(Sketcher.Constraint("Coincident", 28, 2, 29, 1))
sketch3.addConstraint(Sketcher.Constraint("Coincident", 29, 2, 30, 1))
sketch3.addConstraint(Sketcher.Constraint("Coincident", 30, 2, 31, 1))
sketch3.addConstraint(Sketcher.Constraint("Coincident", 31, 2, 32, 1))
sketch3.addConstraint(Sketcher.Constraint("Coincident", 32, 2, 33, 1))
sketch3.addConstraint(Sketcher.Constraint("Coincident", 33, 2, 34, 1))
sketch3.addConstraint(Sketcher.Constraint("Coincident", 34, 2, 35, 1))
sketch3.addConstraint(Sketcher.Constraint("Coincident", 35, 2, 36, 1))
sketch3.addConstraint(Sketcher.Constraint("Coincident", 36, 2, 37, 1))
sketch3.addConstraint(Sketcher.Constraint("Coincident", 37, 2, 38, 1))
sketch3.addConstraint(Sketcher.Constraint("Coincident", 38, 2, 39, 1))
sketch3.addConstraint(Sketcher.Constraint("Coincident", 39, 2, 40, 1))
sketch3.addConstraint(Sketcher.Constraint("Coincident", 40, 2, 41, 1))
sketch3.addConstraint(Sketcher.Constraint("Coincident", 41, 2, 42, 1))
sketch3.addConstraint(Sketcher.Constraint("Coincident", 42, 2, 43, 1))
sketch3.addConstraint(Sketcher.Constraint("Coincident", 43, 2, 44, 1))
sketch3.addConstraint(Sketcher.Constraint("Coincident", 44, 2, 45, 1))
sketch3.addConstraint(Sketcher.Constraint("Coincident", 45, 2, 46, 1))
sketch3.addConstraint(Sketcher.Constraint("Coincident", 46, 2, 47, 1))
sketch3.addConstraint(Sketcher.Constraint("Coincident", 47, 2, 48, 1))
sketch3.addConstraint(Sketcher.Constraint("Coincident", 48, 2, 49, 1))
sketch3.addConstraint(Sketcher.Constraint("Coincident", 49, 2, 50, 1))
sketch3.addConstraint(Sketcher.Constraint("Coincident", 50, 2, 51, 1))
sketch3.addConstraint(Sketcher.Constraint("Coincident", 51, 2, 52, 1))
sketch3.addConstraint(Sketcher.Constraint("Coincident", 52, 2, 53, 1))
sketch3.addConstraint(Sketcher.Constraint("Coincident", 53, 2, 54, 1))
sketch3.addConstraint(Sketcher.Constraint("Coincident", 54, 2, 55, 1))
sketch3.addConstraint(Sketcher.Constraint("Coincident", 55, 2, 56, 1))
sketch3.addConstraint(Sketcher.Constraint("Coincident", 56, 2, 57, 1))
sketch3.addConstraint(Sketcher.Constraint("Coincident", 57, 2, 58, 1))
sketch3.addConstraint(Sketcher.Constraint("Coincident", 58, 2, 59, 1))
sketch3.addConstraint(Sketcher.Constraint("Coincident", 59, 2, 60, 1))
sketch3.addConstraint(Sketcher.Constraint("Coincident", 60, 2, 61, 1))
sketch3.addConstraint(Sketcher.Constraint("Coincident", 61, 2, 62, 1))
sketch3.addConstraint(Sketcher.Constraint("Coincident", 62, 2, 63, 1))
sketch3.addConstraint(Sketcher.Constraint("Coincident", 63, 2, 64, 1))
sketch3.addConstraint(Sketcher.Constraint("Coincident", 64, 2, 65, 1))
sketch3.addConstraint(Sketcher.Constraint("Coincident", 65, 2, 66, 1))
sketch3.addConstraint(Sketcher.Constraint("Coincident", 66, 2, 67, 1))
sketch3.addConstraint(Sketcher.Constraint("Coincident", 67, 2, 68, 1))
sketch3.addConstraint(Sketcher.Constraint("Coincident", 68, 2, 69, 1))
sketch3.addConstraint(Sketcher.Constraint("Coincident", 69, 2, 70, 1))
sketch3.addConstraint(Sketcher.Constraint("Coincident", 70, 2, 71, 1))
sketch3.addConstraint(Sketcher.Constraint("Coincident", 71, 2, 72, 1))
sketch3.addConstraint(Sketcher.Constraint("Coincident", 72, 2, 0, 1))
sketch3.addConstraint(Sketcher.Constraint("Vertical", 14))
sketch3.addConstraint(Sketcher.Constraint("Horizontal", 15))
sketch3.addConstraint(Sketcher.Constraint("Vertical", 16))
sketch3.addConstraint(Sketcher.Constraint("Horizontal", 17))
sketch3.addConstraint(Sketcher.Constraint("Vertical", 18))
sketch3.addConstraint(Sketcher.Constraint("Horizontal", 19))
sketch3.addConstraint(Sketcher.Constraint("Vertical", 20))
sketch3.addConstraint(Sketcher.Constraint("Horizontal", 21))
sketch3.addConstraint(Sketcher.Constraint("Vertical", 22))
sketch3.addConstraint(Sketcher.Constraint("Horizontal", 23))
sketch3.addConstraint(Sketcher.Constraint("Vertical", 24))
sketch3.addConstraint(Sketcher.Constraint("Vertical", 50))
sketch3.addConstraint(Sketcher.Constraint("Horizontal", 51))
sketch3.addConstraint(Sketcher.Constraint("Vertical", 52))
sketch3.addConstraint(Sketcher.Constraint("Horizontal", 53))
sketch3.addConstraint(Sketcher.Constraint("Vertical", 54))
sketch3.addConstraint(Sketcher.Constraint("Horizontal", 55))
sketch3.addConstraint(Sketcher.Constraint("Vertical", 56))
sketch3.addConstraint(Sketcher.Constraint("Horizontal", 57))
sketch3.addConstraint(Sketcher.Constraint("Vertical", 58))
sketch3.addConstraint(Sketcher.Constraint("Horizontal", 59))
sketch3.addConstraint(Sketcher.Constraint("Vertical", 60))
sketch3.addConstraint(Sketcher.Constraint("Horizontal", 73))
sketch3.addConstraint(Sketcher.Constraint("Vertical", 74))
sketch3.addConstraint(Sketcher.Constraint("Horizontal", 75))
sketch3.addConstraint(Sketcher.Constraint("Vertical", 76))
sketch3.addConstraint(Sketcher.Constraint("Coincident", 13, 3, 0, 3))
sketch3.addConstraint(Sketcher.Constraint("Coincident", 25, 3, 13, 3))
sketch3.addConstraint(Sketcher.Constraint("Coincident", 37, 3, 13, 3))
sketch3.addConstraint(Sketcher.Constraint("Coincident", 49, 3, 1, 3))
sketch3.addConstraint(Sketcher.Constraint("Coincident", 61, 3, 13, 3))
sketch3.addConstraint(Sketcher.Constraint("Equal", 0, 1))
sketch3.addConstraint(Sketcher.Constraint("Equal", 13, 25))
sketch3.addConstraint(Sketcher.Constraint("Equal", 25, 37))
sketch3.addConstraint(Sketcher.Constraint("Equal", 49, 61))
sketch3.addConstraint(Sketcher.Constraint("Perpendicular", 2, 3))
sketch3.addConstraint(Sketcher.Constraint("Perpendicular", 3, 4))
sketch3.addConstraint(Sketcher.Constraint("Perpendicular", 4, 5))
sketch3.addConstraint(Sketcher.Constraint("Perpendicular", 5, 6))
sketch3.addConstraint(Sketcher.Constraint("Perpendicular", 6, 7))
sketch3.addConstraint(Sketcher.Constraint("Perpendicular", 7, 8))
sketch3.addConstraint(Sketcher.Constraint("Perpendicular", 8, 9))
sketch3.addConstraint(Sketcher.Constraint("Perpendicular", 9, 10))
sketch3.addConstraint(Sketcher.Constraint("Perpendicular", 10, 11))
sketch3.addConstraint(Sketcher.Constraint("Perpendicular", 11, 12))
sketch3.addConstraint(Sketcher.Constraint("Perpendicular", 26, 27))
sketch3.addConstraint(Sketcher.Constraint("Perpendicular", 27, 28))
sketch3.addConstraint(Sketcher.Constraint("Perpendicular", 28, 29))
sketch3.addConstraint(Sketcher.Constraint("Perpendicular", 29, 30))
sketch3.addConstraint(Sketcher.Constraint("Perpendicular", 30, 31))
sketch3.addConstraint(Sketcher.Constraint("Perpendicular", 31, 32))
sketch3.addConstraint(Sketcher.Constraint("Perpendicular", 32, 33))
sketch3.addConstraint(Sketcher.Constraint("Perpendicular", 33, 34))
sketch3.addConstraint(Sketcher.Constraint("Perpendicular", 34, 35))
sketch3.addConstraint(Sketcher.Constraint("Perpendicular", 35, 36))
sketch3.addConstraint(Sketcher.Constraint("Parallel", 12, 38))
sketch3.addConstraint(Sketcher.Constraint("Perpendicular", 38, 39))
sketch3.addConstraint(Sketcher.Constraint("Perpendicular", 39, 40))
sketch3.addConstraint(Sketcher.Constraint("Perpendicular", 40, 41))
sketch3.addConstraint(Sketcher.Constraint("Perpendicular", 41, 42))
sketch3.addConstraint(Sketcher.Constraint("Perpendicular", 42, 43))
sketch3.addConstraint(Sketcher.Constraint("Perpendicular", 43, 44))
sketch3.addConstraint(Sketcher.Constraint("Perpendicular", 44, 45))
sketch3.addConstraint(Sketcher.Constraint("Perpendicular", 45, 46))
sketch3.addConstraint(Sketcher.Constraint("Perpendicular", 46, 47))
sketch3.addConstraint(Sketcher.Constraint("Perpendicular", 47, 48))
sketch3.addConstraint(Sketcher.Constraint("Parallel", 36, 62))
sketch3.addConstraint(Sketcher.Constraint("Perpendicular", 62, 63))
sketch3.addConstraint(Sketcher.Constraint("Perpendicular", 63, 64))
sketch3.addConstraint(Sketcher.Constraint("Perpendicular", 64, 65))
sketch3.addConstraint(Sketcher.Constraint("Perpendicular", 65, 66))
sketch3.addConstraint(Sketcher.Constraint("Perpendicular", 66, 67))
sketch3.addConstraint(Sketcher.Constraint("Perpendicular", 67, 68))
sketch3.addConstraint(Sketcher.Constraint("Perpendicular", 68, 69))
sketch3.addConstraint(Sketcher.Constraint("Perpendicular", 69, 70))
sketch3.addConstraint(Sketcher.Constraint("Perpendicular", 70, 71))
sketch3.addConstraint(Sketcher.Constraint("Perpendicular", 71, 72))
sketch3.addConstraint(Sketcher.Constraint("Horizontal", 37, 3, 0, 2))
sketch3.addConstraint(Sketcher.Constraint("Horizontal", 17, 2, 20, 2))
sketch3.addConstraint(Sketcher.Constraint("Horizontal", 15, 2, 22, 2))
sketch3.addConstraint(Sketcher.Constraint("Horizontal", 13, 2, 24, 2))
sketch3.addConstraint(Sketcher.Constraint("Horizontal", 12, 2, 25, 2))
sketch3.addConstraint(Sketcher.Constraint("Horizontal", 11, 2, 26, 2))
sketch3.addConstraint(Sketcher.Constraint("Horizontal", 10, 2, 27, 2))
sketch3.addConstraint(Sketcher.Constraint("Horizontal", 9, 2, 28, 2))
sketch3.addConstraint(Sketcher.Constraint("Horizontal", 8, 2, 29, 2))
sketch3.addConstraint(Sketcher.Constraint("Horizontal", 7, 2, 30, 2))
sketch3.addConstraint(Sketcher.Constraint("Horizontal", 6, 2, 31, 2))
sketch3.addConstraint(Sketcher.Constraint("Horizontal", 5, 2, 32, 2))
sketch3.addConstraint(Sketcher.Constraint("Horizontal", 4, 2, 33, 2))
sketch3.addConstraint(Sketcher.Constraint("Horizontal", 3, 2, 34, 2))
sketch3.addConstraint(Sketcher.Constraint("Horizontal", 2, 2, 35, 2))
sketch3.addConstraint(Sketcher.Constraint("Horizontal", 1, 2, 36, 2))
sketch3.addConstraint(Sketcher.Constraint("Horizontal", 53, 2, 56, 2))
sketch3.addConstraint(Sketcher.Constraint("Horizontal", 51, 2, 58, 2))
sketch3.addConstraint(Sketcher.Constraint("Horizontal", 49, 2, 60, 2))
sketch3.addConstraint(Sketcher.Constraint("Horizontal", 48, 2, 61, 2))
sketch3.addConstraint(Sketcher.Constraint("Horizontal", 47, 2, 62, 2))
sketch3.addConstraint(Sketcher.Constraint("Horizontal", 46, 2, 63, 2))
sketch3.addConstraint(Sketcher.Constraint("Horizontal", 45, 2, 64, 2))
sketch3.addConstraint(Sketcher.Constraint("Horizontal", 44, 2, 65, 2))
sketch3.addConstraint(Sketcher.Constraint("Horizontal", 43, 2, 66, 2))
sketch3.addConstraint(Sketcher.Constraint("Horizontal", 42, 2, 67, 2))
sketch3.addConstraint(Sketcher.Constraint("Horizontal", 41, 2, 68, 2))
sketch3.addConstraint(Sketcher.Constraint("Horizontal", 40, 2, 69, 2))
sketch3.addConstraint(Sketcher.Constraint("Horizontal", 39, 2, 70, 2))
sketch3.addConstraint(Sketcher.Constraint("Horizontal", 38, 2, 71, 2))
sketch3.addConstraint(Sketcher.Constraint("Horizontal", 37, 2, 72, 2))
sketch3.addConstraint(Sketcher.Constraint("Vertical", 14, 2, 17, 2))
sketch3.addConstraint(Sketcher.Constraint("Vertical", 20, 2, 23, 2))
sketch3.addConstraint(Sketcher.Constraint("Vertical", 36, 2, 37, 2))
sketch3.addConstraint(Sketcher.Constraint("Vertical", 35, 2, 38, 2))
sketch3.addConstraint(Sketcher.Constraint("Vertical", 34, 2, 39, 2))
sketch3.addConstraint(Sketcher.Constraint("Vertical", 33, 2, 40, 2))
sketch3.addConstraint(Sketcher.Constraint("Vertical", 32, 2, 41, 2))
sketch3.addConstraint(Sketcher.Constraint("Vertical", 31, 2, 42, 2))
sketch3.addConstraint(Sketcher.Constraint("Vertical", 30, 2, 43, 2))
sketch3.addConstraint(Sketcher.Constraint("Vertical", 29, 2, 44, 2))
sketch3.addConstraint(Sketcher.Constraint("Vertical", 28, 2, 45, 2))
sketch3.addConstraint(Sketcher.Constraint("Vertical", 27, 2, 46, 2))
sketch3.addConstraint(Sketcher.Constraint("Vertical", 26, 2, 47, 2))
sketch3.addConstraint(Sketcher.Constraint("Vertical", 25, 2, 48, 2))
sketch3.addConstraint(Sketcher.Constraint("Vertical", 24, 2, 49, 2))
sketch3.addConstraint(Sketcher.Constraint("Vertical", 22, 2, 51, 2))
sketch3.addConstraint(Sketcher.Constraint("Vertical", 50, 2, 53, 2))
sketch3.addConstraint(Sketcher.Constraint("Vertical", 18, 2, 55, 2))
sketch3.addConstraint(Sketcher.Constraint("Vertical", 16, 2, 57, 2))
sketch3.addConstraint(Sketcher.Constraint("Equal", 17, 21))
sketch3.addConstraint(Sketcher.Constraint("Equal", 59, 16))
sketch3.addConstraint(Sketcher.Constraint("Equal", 24, 50))
sketch3.addConstraint(Sketcher.Constraint("Equal", 22, 52))
sketch3.addConstraint(Sketcher.Constraint("Equal", 20, 54))
sketch3.addConstraint(Sketcher.Constraint("Equal", 75, 74))
sketch3.addConstraint(Sketcher.Constraint("Equal", 3, 4))
sketch3.addConstraint(Sketcher.Constraint("Equal", 4, 5))
sketch3.addConstraint(Sketcher.Constraint("Equal", 6, 8))
sketch3.addConstraint(Sketcher.Constraint("Equal", 5, 9))
sketch3.addConstraint(Sketcher.Constraint("Equal", 9, 10))
sketch3.addConstraint(Sketcher.Constraint("Equal", 10, 11))
sketch3.addConstraint(Sketcher.Constraint("Equal", 2, 12))
sketch3.addConstraint(Sketcher.Constraint("Angle", 2, Q("-150.000002 deg")))
sketch3.addConstraint(Sketcher.Constraint("Radius", 37, Q("0.6749998 in")))
sketch3.addConstraint(Sketcher.Constraint("DistanceX", 15, 1, 15, 2, Q("0.0625 in")))
sketch3.addConstraint(Sketcher.Constraint("DistanceX", 73, 2, 73, 1, Q("0.125 in")))
sketch3.addConstraint(Sketcher.Constraint("Distance", 3, Q("0.0625 in")))
sketch3.addConstraint(Sketcher.Constraint("DistanceY", 18, 2, 18, 1, Q("0.1375 in")))
sketch3.addConstraint(Sketcher.Constraint("Distance", 6, Q("0.1375 in")))
sketch3.addConstraint(Sketcher.Constraint("DistanceX", 19, 2, 19, 1, Q("9 mm")))
sketch3.addConstraint(Sketcher.Constraint("Distance", 7, Q("9 mm")))
sketch3.addConstraint(Sketcher.Constraint("DistanceY", 14, 2, 14, 1, Q("1.303912 mm")))
sketch3.addConstraint(Sketcher.Constraint("DistanceY", -1, 1, 2, 2, Q("11.7902 mm")))
sketch3.addConstraint(Sketcher.Constraint("DistanceX", 30, 2, -1, 1, Q("72.262499 mm")))
sketch3.addConstraint(Sketcher.Constraint("DistanceY", 43, 2, -1, 1, Q("0.9098 mm")))
sketch3.addConstraint(Sketcher.Constraint("DistanceX", 73, 2, -1, 1, Q("67.301181 mm")))
sketch3.addConstraint(Sketcher.Constraint("DistanceY", -1, 1, 73, 2, Q("6.479814 mm")))
sketch3.setExpression("Constraints[218]", "Params.sketch3_radius")
sketch3.setExpression("Constraints[219]", "Params.sketch3_width")
sketch3.setExpression("Constraints[220]", "Params.sketch3_width2")
sketch3.setExpression("Constraints[221]", "Params.sketch3_length")
pad3 = body3.newObject("PartDesign::Pad", "Pad002")
pad3.Profile = sketch3
pad3.setExpression("Length", "Params.pad3_length")

doc.recompute()
